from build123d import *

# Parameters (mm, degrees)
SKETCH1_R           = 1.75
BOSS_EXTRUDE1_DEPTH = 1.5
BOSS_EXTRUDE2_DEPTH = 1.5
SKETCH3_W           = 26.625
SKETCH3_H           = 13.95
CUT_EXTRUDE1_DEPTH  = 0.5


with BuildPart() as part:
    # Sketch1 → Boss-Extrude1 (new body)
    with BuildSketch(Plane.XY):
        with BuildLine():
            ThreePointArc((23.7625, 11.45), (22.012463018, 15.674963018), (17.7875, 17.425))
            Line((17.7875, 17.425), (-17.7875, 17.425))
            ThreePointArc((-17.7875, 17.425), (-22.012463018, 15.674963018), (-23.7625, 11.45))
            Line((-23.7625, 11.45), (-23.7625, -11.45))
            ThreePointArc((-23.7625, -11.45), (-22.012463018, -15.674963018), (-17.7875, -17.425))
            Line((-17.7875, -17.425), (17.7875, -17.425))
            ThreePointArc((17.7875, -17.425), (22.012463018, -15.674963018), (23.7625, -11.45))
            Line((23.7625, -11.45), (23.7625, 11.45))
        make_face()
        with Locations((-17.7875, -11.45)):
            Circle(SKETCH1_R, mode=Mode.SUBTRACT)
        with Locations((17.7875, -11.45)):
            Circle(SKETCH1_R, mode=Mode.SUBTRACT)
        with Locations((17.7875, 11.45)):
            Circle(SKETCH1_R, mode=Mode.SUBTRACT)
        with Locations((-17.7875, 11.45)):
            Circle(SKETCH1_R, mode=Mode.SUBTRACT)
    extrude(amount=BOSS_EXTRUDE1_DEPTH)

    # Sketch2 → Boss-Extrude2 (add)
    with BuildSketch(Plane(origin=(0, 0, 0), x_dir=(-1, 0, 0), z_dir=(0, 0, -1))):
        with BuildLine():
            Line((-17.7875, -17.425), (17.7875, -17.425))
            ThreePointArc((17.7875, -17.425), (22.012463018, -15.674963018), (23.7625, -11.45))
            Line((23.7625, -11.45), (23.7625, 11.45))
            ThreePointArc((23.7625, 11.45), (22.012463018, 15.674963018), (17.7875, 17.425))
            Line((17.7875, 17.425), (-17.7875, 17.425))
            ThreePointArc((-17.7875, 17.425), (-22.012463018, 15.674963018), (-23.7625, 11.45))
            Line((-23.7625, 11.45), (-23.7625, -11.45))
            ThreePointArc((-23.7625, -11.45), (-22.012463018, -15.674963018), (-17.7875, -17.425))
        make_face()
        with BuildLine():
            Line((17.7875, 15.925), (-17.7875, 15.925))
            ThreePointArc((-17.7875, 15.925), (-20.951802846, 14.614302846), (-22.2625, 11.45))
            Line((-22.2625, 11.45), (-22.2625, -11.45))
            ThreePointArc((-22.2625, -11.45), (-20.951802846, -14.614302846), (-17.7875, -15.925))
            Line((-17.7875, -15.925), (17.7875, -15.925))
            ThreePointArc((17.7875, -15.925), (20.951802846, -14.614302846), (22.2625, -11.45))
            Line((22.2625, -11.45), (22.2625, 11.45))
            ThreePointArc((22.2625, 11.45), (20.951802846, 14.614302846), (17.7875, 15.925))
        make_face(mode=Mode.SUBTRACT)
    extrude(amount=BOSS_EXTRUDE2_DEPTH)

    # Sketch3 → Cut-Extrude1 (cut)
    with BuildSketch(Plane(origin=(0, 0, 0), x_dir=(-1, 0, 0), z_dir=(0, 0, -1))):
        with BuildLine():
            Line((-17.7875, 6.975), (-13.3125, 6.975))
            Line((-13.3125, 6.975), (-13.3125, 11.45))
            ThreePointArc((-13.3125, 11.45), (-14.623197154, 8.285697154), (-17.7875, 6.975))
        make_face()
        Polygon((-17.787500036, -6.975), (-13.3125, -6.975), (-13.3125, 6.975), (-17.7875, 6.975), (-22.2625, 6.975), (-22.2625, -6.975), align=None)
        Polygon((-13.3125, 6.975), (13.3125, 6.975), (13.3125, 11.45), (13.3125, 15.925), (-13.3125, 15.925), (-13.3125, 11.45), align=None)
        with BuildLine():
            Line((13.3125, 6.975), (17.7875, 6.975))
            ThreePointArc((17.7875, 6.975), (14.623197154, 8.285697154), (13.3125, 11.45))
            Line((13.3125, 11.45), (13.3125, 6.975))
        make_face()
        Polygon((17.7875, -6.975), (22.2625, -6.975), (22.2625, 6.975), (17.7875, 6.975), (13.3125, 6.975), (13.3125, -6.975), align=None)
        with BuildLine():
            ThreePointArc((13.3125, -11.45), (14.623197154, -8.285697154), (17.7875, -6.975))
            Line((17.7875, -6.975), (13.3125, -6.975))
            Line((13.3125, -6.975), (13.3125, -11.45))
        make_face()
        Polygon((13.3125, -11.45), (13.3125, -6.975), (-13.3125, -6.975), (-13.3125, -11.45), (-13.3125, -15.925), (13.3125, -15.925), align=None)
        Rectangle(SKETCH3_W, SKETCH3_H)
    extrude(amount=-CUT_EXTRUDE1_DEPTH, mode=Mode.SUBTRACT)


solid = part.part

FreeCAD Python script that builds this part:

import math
import FreeCAD as App
import Part
import Sketcher

doc = App.newDocument("Part")
body = doc.addObject("PartDesign::Body", "Body")

# Sketch on XY plane
sketch1 = body.newObject("Sketcher::SketchObject", "Sketch")
sketch1.AttachmentSupport = (doc.getObject("XY_Plane"), [""])
sketch1.MapMode = "FlatFace"
sketch1.addGeometry([
    Part.ArcOfCircle(Part.Circle(App.Vector(17.8, 11.5, 0), App.Vector(0, 0, 1), 6), math.radians(0), math.radians(90)),  # 0
    Part.LineSegment(App.Vector(17.8, 17.4, 0), App.Vector(-17.8, 17.4, 0)),  # 1
    Part.ArcOfCircle(Part.Circle(App.Vector(-17.8, 11.5, 0), App.Vector(0, 0, 1), 6), math.radians(90), math.radians(180)),  # 2
    Part.LineSegment(App.Vector(-23.8, 11.4, 0), App.Vector(-23.8, -11.4, 0)),  # 3
    Part.ArcOfCircle(Part.Circle(App.Vector(-17.8, -11.5, 0), App.Vector(0, 0, 1), 6), math.radians(180), math.radians(270)),  # 4
    Part.LineSegment(App.Vector(-17.8, -17.4, 0), App.Vector(17.8, -17.4, 0)),  # 5
    Part.ArcOfCircle(Part.Circle(App.Vector(17.8, -11.5, 0), App.Vector(0, 0, 1), 6), math.radians(-90), math.radians(0)),  # 6
    Part.LineSegment(App.Vector(23.8, -11.4, 0), App.Vector(23.8, 11.4, 0)),  # 7
    Part.Circle(App.Vector(-17.8, -11.4, 0), App.Vector(0, 0, 1), 1.8),  # 8
    Part.Circle(App.Vector(17.8, -11.4, 0), App.Vector(0, 0, 1), 1.8),  # 9
    Part.Circle(App.Vector(-17.8, 11.4, 0), App.Vector(0, 0, 1), 1.8),  # 10
    Part.Circle(App.Vector(17.8, 11.4, 0), App.Vector(0, 0, 1), 1.8),  # 11
], False)
sketch1.addConstraint([
    Sketcher.Constraint("Tangent", 0, 2, 1, 1),
    Sketcher.Constraint("Tangent", 1, 2, 2, 1),
    Sketcher.Constraint("Tangent", 2, 2, 3, 1),
    Sketcher.Constraint("Tangent", 3, 2, 4, 1),
    Sketcher.Constraint("Tangent", 4, 2, 5, 1),
    Sketcher.Constraint("Tangent", 5, 2, 6, 1),
    Sketcher.Constraint("Tangent", 6, 2, 7, 1),
    Sketcher.Constraint("Tangent", 7, 2, 0, 1),
    Sketcher.Constraint("Horizontal", 1),
    Sketcher.Constraint("Vertical", 3),
    Sketcher.Constraint("Horizontal", 5),
    Sketcher.Constraint("Vertical", 7),
    Sketcher.Constraint("Coincident", 8, 3, 4, 3),
    Sketcher.Constraint("Coincident", 9, 3, 6, 3),
    Sketcher.Constraint("Coincident", 10, 3, 2, 3),
    Sketcher.Constraint("Coincident", 11, 3, 0, 3),
    Sketcher.Constraint("Equal", 0, 2),
    Sketcher.Constraint("Equal", 2, 4),
    Sketcher.Constraint("Equal", 4, 6),
    Sketcher.Constraint("Equal", 8, 9),
    Sketcher.Constraint("Equal", 9, 10),
    Sketcher.Constraint("Equal", 10, 11),
    Sketcher.Constraint("Symmetric", 0, 3, 4, 3, -1, 1),
    Sketcher.Constraint("Diameter", 8, 3.5),
    Sketcher.Constraint("DistanceY", 3, 2, 3, 1, 22.9),
    Sketcher.Constraint("Radius", 0, 5.975),
    Sketcher.Constraint("DistanceX", 1, 2, 1, 1, 35.575),
])
pad1 = body.newObject("PartDesign::Pad", "Pad")
pad1.Profile = sketch1
pad1.Length = 1.5

# Sketch on XY plane
sketch2 = body.newObject("Sketcher::SketchObject", "Sketch001")
sketch2.AttachmentSupport = (doc.getObject("XY_Plane"), [""])
sketch2.MapMode = "FlatFace"
sketch2.addGeometry([
    Part.LineSegment(App.Vector(17.8, -17.4, 0), App.Vector(-17.8, -17.4, 0)),  # 0
    Part.ArcOfCircle(Part.Circle(App.Vector(-17.8, -11.5, 0), App.Vector(0, 0, 1), 6), math.radians(180), math.radians(270)),  # 1
    Part.LineSegment(App.Vector(-23.8, -11.4, 0), App.Vector(-23.8, 11.4, 0)),  # 2
    Part.ArcOfCircle(Part.Circle(App.Vector(-17.8, 11.5, 0), App.Vector(0, 0, 1), 6), math.radians(90), math.radians(180)),  # 3
    Part.LineSegment(App.Vector(-17.8, 17.4, 0), App.Vector(17.8, 17.4, 0)),  # 4
    Part.ArcOfCircle(Part.Circle(App.Vector(17.8, 11.5, 0), App.Vector(0, 0, 1), 6), math.radians(0), math.radians(90)),  # 5
    Part.LineSegment(App.Vector(23.8, 11.4, 0), App.Vector(23.8, -11.4, 0)),  # 6
    Part.ArcOfCircle(Part.Circle(App.Vector(17.8, -11.5, 0), App.Vector(0, 0, 1), 6), math.radians(-90), math.radians(0)),  # 7
    Part.LineSegment(App.Vector(17.8, 15.9, 0), App.Vector(-17.8, 15.9, 0)),  # 8
    Part.ArcOfCircle(Part.Circle(App.Vector(-17.8, 11.5, 0), App.Vector(0, 0, 1), 4.5), math.radians(90), math.radians(180)),  # 9
    Part.LineSegment(App.Vector(-22.3, 11.4, 0), App.Vector(-22.3, -11.4, 0)),  # 10
    Part.ArcOfCircle(Part.Circle(App.Vector(-17.8, -11.5, 0), App.Vector(0, 0, 1), 4.5), math.radians(180), math.radians(270)),  # 11
    Part.LineSegment(App.Vector(-17.8, -15.9, 0), App.Vector(17.8, -15.9, 0)),  # 12
    Part.ArcOfCircle(Part.Circle(App.Vector(17.8, -11.5, 0), App.Vector(0, 0, 1), 4.5), math.radians(-90), math.radians(0)),  # 13
    Part.LineSegment(App.Vector(22.3, -11.4, 0), App.Vector(22.3, 11.4, 0)),  # 14
    Part.ArcOfCircle(Part.Circle(App.Vector(17.8, 11.5, 0), App.Vector(0, 0, 1), 4.5), math.radians(0), math.radians(90)),  # 15
], False)
sketch2.addConstraint([
    Sketcher.Constraint("Tangent", 0, 2, 1, 2),
    Sketcher.Constraint("Tangent", 1, 1, 2, 1),
    Sketcher.Constraint("Tangent", 2, 2, 3, 2),
    Sketcher.Constraint("Tangent", 3, 1, 4, 1),
    Sketcher.Constraint("Tangent", 4, 2, 5, 2),
    Sketcher.Constraint("Tangent", 5, 1, 6, 1),
    Sketcher.Constraint("Tangent", 6, 2, 7, 2),
    Sketcher.Constraint("Tangent", 7, 1, 0, 1),
    Sketcher.Constraint("Tangent", 8, 2, 9, 1),
    Sketcher.Constraint("Tangent", 9, 2, 10, 1),
    Sketcher.Constraint("Tangent", 10, 2, 11, 1),
    Sketcher.Constraint("Tangent", 11, 2, 12, 1),
    Sketcher.Constraint("Tangent", 12, 2, 13, 1),
    Sketcher.Constraint("Tangent", 13, 2, 14, 1),
    Sketcher.Constraint("Tangent", 14, 2, 15, 1),
    Sketcher.Constraint("Tangent", 15, 2, 8, 1),
    Sketcher.Constraint("Horizontal", 0),
    Sketcher.Constraint("Vertical", 2),
    Sketcher.Constraint("Horizontal", 4),
    Sketcher.Constraint("Vertical", 6),
    Sketcher.Constraint("Horizontal", 8),
    Sketcher.Constraint("Vertical", 10),
    Sketcher.Constraint("Horizontal", 12),
    Sketcher.Constraint("Vertical", 14),
    Sketcher.Constraint("Coincident", 9, 3, 3, 3),
    Sketcher.Constraint("Coincident", 11, 3, 1, 3),
    Sketcher.Constraint("Coincident", 13, 3, 7, 3),
    Sketcher.Constraint("Equal", 1, 3),
    Sketcher.Constraint("Equal", 3, 5),
    Sketcher.Constraint("Equal", 5, 7),
    Sketcher.Constraint("Equal", 13, 15),
    Sketcher.Constraint("Symmetric", 1, 3, 5, 3, -1, 1),
    Sketcher.Constraint("DistanceY", 2, 1, 2, 2, 22.9),
    Sketcher.Constraint("Radius", 1, 5.975),
    Sketcher.Constraint("Radius", 9, 4.475),
    Sketcher.Constraint("DistanceX", 0, 2, 0, 1, 35.575),
])
pad2 = body.newObject("PartDesign::Pad", "Pad001")
pad2.Profile = sketch2
pad2.Length = 1.5
pad2.Reversed = True

# Sketch on XY plane
sketch3 = body.newObject("Sketcher::SketchObject", "Sketch002")
sketch3.AttachmentSupport = (doc.getObject("XY_Plane"), [""])
sketch3.MapMode = "FlatFace"
sketch3.addGeometry([
    Part.LineSegment(App.Vector(22.3, -7, 0), App.Vector(13.3, -7, 0)),  # 0
    Part.LineSegment(App.Vector(13.3, -7, 0), App.Vector(13.3, -15.9, 0)),  # 1
    Part.LineSegment(App.Vector(13.3, -15.9, 0), App.Vector(-13.3, -15.9, 0)),  # 2
    Part.LineSegment(App.Vector(-13.3, -15.9, 0), App.Vector(-13.3, -11.4, 0)),  # 3
    Part.ArcOfCircle(Part.Circle(App.Vector(-17.8, -11.4, 0), App.Vector(0, 0, 1), 4.5), math.radians(0), math.radians(90)),  # 4
    Part.LineSegment(App.Vector(-17.8, -7, 0), App.Vector(-22.3, -7, 0)),  # 5
    Part.LineSegment(App.Vector(-22.3, -7, 0), App.Vector(-22.3, 7, 0)),  # 6
    Part.LineSegment(App.Vector(-22.3, 7, 0), App.Vector(-17.8, 7, 0)),  # 7
    Part.ArcOfCircle(Part.Circle(App.Vector(-17.8, 11.4, 0), App.Vector(0, 0, 1), 4.5), math.radians(-90), math.radians(0)),  # 8
    Part.LineSegment(App.Vector(-13.3, 11.4, 0), App.Vector(-13.3, 15.9, 0)),  # 9
    Part.LineSegment(App.Vector(-13.3, 15.9, 0), App.Vector(13.3, 15.9, 0)),  # 10
    Part.LineSegment(App.Vector(13.3, 15.9, 0), App.Vector(13.3, 11.4, 0)),  # 11
    Part.ArcOfCircle(Part.Circle(App.Vector(17.8, 11.4, 0), App.Vector(0, 0, 1), 4.5), math.radians(180), math.radians(270)),  # 12
    Part.LineSegment(App.Vector(17.8, 7, 0), App.Vector(22.3, 7, 0)),  # 13
    Part.LineSegment(App.Vector(22.3, 7, 0), App.Vector(22.3, -7, 0)),  # 14
], False)
sketch3.addConstraint([
    Sketcher.Constraint("Coincident", 0, 2, 1, 1),
    Sketcher.Constraint("Coincident", 1, 2, 2, 1),
    Sketcher.Constraint("Coincident", 2, 2, 3, 1),
    Sketcher.Constraint("Tangent", 3, 2, 4, 1),
    Sketcher.Constraint("Tangent", 4, 2, 5, 1),
    Sketcher.Constraint("Coincident", 5, 2, 6, 1),
    Sketcher.Constraint("Coincident", 6, 2, 7, 1),
    Sketcher.Constraint("Tangent", 7, 2, 8, 1),
    Sketcher.Constraint("Tangent", 8, 2, 9, 1),
    Sketcher.Constraint("Coincident", 9, 2, 10, 1),
    Sketcher.Constraint("Coincident", 10, 2, 11, 1),
    Sketcher.Constraint("Tangent", 11, 2, 12, 1),
    Sketcher.Constraint("Tangent", 12, 2, 13, 1),
    Sketcher.Constraint("Coincident", 13, 2, 14, 1),
    Sketcher.Constraint("Coincident", 14, 2, 0, 1),
    Sketcher.Constraint("Horizontal", 0),
    Sketcher.Constraint("Vertical", 1),
    Sketcher.Constraint("Horizontal", 2),
    Sketcher.Constraint("Vertical", 3),
    Sketcher.Constraint("Horizontal", 5),
    Sketcher.Constraint("Vertical", 6),
    Sketcher.Constraint("Horizontal", 7),
    Sketcher.Constraint("Vertical", 9),
    Sketcher.Constraint("Horizontal", 10),
    Sketcher.Constraint("Vertical", 11),
    Sketcher.Constraint("Horizontal", 13),
    Sketcher.Constraint("Vertical", 14),
    Sketcher.Constraint("Equal", 4, 8),
    Sketcher.Constraint("Equal", 8, 12),
    Sketcher.Constraint("Symmetric", 4, 3, 12, 3, -1, 1),
    Sketcher.Constraint("Symmetric", 1, 2, 9, 2, -1, 1),
    Sketcher.Constraint("Symmetric", 6, 2, 14, 2, -1, 1),
    Sketcher.Constraint("Symmetric", 8, 3, 12, 3, -2),
    Sketcher.Constraint("Equal", 0, 1),
    Sketcher.Constraint("Radius", 4, 4.475),
    Sketcher.Constraint("DistanceX", 0, 2, 0, 1, 8.95),
    Sketcher.Constraint("DistanceY", 6, 1, 6, 2, 13.95),
    Sketcher.Constraint("DistanceX", 4, 3, 0, 2, 31.1),
])
pocket1 = body.newObject("PartDesign::Pocket", "Pocket")
pocket1.Profile = sketch3
pocket1.Length = 0.5
pocket1.Reversed = True

doc.recompute()
